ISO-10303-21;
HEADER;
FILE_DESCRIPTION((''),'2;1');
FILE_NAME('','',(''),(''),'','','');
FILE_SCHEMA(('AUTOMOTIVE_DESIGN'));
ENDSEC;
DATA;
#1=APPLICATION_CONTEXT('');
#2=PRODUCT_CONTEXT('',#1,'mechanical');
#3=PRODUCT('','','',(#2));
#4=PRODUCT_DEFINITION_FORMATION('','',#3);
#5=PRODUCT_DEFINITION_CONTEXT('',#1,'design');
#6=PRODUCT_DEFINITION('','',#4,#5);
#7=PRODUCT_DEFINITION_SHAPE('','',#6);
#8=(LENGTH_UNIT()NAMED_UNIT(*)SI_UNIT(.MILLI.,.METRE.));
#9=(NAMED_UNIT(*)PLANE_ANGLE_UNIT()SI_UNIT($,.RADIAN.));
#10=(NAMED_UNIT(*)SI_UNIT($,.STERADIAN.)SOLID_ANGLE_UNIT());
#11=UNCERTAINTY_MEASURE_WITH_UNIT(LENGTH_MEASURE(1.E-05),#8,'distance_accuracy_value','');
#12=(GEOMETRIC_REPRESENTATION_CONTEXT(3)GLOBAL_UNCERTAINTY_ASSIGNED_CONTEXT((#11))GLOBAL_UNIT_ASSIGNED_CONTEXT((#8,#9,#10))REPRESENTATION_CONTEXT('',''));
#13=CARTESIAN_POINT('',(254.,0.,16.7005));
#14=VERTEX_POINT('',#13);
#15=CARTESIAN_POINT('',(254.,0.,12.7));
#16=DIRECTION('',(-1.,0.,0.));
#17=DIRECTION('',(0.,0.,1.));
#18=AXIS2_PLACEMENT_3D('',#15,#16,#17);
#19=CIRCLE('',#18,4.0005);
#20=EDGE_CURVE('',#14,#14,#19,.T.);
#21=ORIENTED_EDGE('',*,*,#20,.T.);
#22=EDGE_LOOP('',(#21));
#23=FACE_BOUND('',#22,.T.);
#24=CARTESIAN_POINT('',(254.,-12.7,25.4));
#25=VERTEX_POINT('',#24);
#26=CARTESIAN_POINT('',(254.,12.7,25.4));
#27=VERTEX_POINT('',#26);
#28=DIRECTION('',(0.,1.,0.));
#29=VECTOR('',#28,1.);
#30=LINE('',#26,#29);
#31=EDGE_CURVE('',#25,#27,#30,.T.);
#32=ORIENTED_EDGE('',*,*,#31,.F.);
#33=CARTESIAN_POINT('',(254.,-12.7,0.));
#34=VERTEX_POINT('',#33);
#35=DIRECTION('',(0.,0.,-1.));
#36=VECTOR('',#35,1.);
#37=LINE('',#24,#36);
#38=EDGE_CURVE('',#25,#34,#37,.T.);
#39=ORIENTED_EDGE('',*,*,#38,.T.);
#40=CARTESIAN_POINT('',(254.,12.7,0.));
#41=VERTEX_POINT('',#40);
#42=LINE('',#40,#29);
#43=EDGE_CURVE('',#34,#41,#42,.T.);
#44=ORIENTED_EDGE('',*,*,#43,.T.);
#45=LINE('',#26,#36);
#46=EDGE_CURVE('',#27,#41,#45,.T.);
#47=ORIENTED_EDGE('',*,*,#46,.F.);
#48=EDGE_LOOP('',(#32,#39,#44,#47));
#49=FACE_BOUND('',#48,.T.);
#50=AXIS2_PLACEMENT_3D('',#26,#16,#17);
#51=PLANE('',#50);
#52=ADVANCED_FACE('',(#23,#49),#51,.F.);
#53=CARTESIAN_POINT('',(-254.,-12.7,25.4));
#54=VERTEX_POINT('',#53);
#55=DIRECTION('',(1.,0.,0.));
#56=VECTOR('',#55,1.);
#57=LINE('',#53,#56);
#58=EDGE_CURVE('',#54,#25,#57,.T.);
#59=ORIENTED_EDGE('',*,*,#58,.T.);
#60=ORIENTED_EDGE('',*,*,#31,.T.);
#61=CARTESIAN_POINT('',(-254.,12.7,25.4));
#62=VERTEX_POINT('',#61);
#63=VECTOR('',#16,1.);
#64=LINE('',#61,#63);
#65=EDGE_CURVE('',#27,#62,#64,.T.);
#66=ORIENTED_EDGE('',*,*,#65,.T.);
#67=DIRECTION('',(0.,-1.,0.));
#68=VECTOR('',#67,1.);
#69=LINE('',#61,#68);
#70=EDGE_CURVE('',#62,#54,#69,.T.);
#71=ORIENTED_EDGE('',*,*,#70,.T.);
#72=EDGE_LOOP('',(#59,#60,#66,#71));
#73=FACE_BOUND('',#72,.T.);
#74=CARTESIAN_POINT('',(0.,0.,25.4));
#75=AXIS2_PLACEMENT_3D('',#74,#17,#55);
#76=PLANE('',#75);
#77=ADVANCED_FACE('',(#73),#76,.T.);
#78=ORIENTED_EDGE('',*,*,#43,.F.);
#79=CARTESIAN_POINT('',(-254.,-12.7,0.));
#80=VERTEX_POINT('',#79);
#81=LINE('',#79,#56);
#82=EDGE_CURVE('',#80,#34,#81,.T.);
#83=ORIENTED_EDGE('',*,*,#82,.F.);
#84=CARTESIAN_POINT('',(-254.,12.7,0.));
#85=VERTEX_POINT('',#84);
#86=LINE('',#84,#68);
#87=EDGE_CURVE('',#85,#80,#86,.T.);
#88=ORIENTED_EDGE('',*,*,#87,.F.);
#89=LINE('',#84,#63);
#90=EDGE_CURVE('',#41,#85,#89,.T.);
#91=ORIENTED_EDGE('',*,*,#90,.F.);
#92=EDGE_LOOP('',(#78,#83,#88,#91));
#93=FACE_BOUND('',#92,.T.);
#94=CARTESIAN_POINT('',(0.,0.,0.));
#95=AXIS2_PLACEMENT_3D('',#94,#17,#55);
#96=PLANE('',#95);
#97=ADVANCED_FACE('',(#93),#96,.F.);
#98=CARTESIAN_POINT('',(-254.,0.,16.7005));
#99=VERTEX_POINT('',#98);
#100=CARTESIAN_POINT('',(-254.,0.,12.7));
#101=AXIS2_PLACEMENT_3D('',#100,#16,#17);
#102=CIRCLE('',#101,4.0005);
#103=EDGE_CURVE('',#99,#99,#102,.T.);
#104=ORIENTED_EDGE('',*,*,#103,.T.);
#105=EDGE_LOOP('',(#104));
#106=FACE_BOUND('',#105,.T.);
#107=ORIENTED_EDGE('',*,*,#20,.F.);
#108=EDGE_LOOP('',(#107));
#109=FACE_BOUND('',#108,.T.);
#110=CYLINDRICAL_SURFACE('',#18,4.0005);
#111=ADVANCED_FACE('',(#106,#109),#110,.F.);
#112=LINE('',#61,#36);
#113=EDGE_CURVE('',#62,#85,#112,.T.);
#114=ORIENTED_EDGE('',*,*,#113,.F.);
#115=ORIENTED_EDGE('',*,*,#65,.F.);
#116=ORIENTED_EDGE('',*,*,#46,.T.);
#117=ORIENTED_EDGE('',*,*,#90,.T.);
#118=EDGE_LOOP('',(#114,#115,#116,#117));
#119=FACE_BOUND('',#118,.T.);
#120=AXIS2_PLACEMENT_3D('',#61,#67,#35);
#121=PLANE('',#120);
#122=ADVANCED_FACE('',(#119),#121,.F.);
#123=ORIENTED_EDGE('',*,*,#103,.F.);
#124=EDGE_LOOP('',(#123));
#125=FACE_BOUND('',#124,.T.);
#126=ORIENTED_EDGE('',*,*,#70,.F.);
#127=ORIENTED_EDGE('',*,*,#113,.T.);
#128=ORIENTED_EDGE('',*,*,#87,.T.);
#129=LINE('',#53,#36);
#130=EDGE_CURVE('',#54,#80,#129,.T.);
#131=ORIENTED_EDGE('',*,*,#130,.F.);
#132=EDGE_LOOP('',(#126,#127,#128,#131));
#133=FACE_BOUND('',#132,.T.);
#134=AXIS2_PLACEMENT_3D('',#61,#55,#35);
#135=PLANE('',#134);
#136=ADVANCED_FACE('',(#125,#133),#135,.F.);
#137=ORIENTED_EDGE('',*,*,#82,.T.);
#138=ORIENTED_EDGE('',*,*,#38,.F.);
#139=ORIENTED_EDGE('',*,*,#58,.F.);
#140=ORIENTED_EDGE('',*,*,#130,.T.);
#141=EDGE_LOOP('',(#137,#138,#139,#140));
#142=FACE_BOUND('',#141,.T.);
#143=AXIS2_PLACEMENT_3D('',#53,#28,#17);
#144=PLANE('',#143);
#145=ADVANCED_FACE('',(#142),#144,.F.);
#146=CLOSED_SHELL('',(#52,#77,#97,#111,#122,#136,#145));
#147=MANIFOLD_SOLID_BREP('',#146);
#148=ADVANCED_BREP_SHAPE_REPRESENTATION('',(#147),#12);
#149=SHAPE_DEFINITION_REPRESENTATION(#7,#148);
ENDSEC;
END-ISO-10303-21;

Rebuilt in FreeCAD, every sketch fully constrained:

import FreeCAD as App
import Part
import Sketcher

V = App.Vector
Q = App.Units.Quantity


def add_polygon(sketch, points):
    """Adds a closed chain of lines whose ends are joined by coincident constraints."""
    first, n = sketch.GeometryCount, len(points)
    for a, b in zip(points, points[1:] + points[:1]):
        sketch.addGeometry(Part.LineSegment(App.Vector(*a, 0), App.Vector(*b, 0)), False)
    for i in range(n):
        sketch.addConstraint(Sketcher.Constraint("Coincident", first + i, 2, first + (i + 1) % n, 1))

doc = App.newDocument("Part")
body = doc.addObject("PartDesign::Body", "Body")

# Sketch on XY plane
sketch1 = body.newObject("Sketcher::SketchObject", "Sketch")
sketch1.AttachmentSupport = (doc.getObject("XY_Plane"), [""])
sketch1.MapMode = "FlatFace"
add_polygon(sketch1, [(-254, 13), (-254, -13), (254, -13), (254, 13)])  # lines 0-3
sketch1.addConstraint([
    Sketcher.Constraint("Vertical", 0),
    Sketcher.Constraint("Horizontal", 1),
    Sketcher.Constraint("Vertical", 2),
    Sketcher.Constraint("Horizontal", 3),
    Sketcher.Constraint("Symmetric", 0, 2, 2, 2, -1, 1),
    Sketcher.Constraint("DistanceX", 1, 1, 1, 2, Q("20 in")),
    Sketcher.Constraint("DistanceY", 0, 2, 0, 1, Q("1 in")),
])
pad1 = body.newObject("PartDesign::Pad", "Pad")
pad1.Profile = sketch1
pad1.Length = Q("1 in")

# Sketch on YZ plane
sketch2 = body.newObject("Sketcher::SketchObject", "Sketch001")
sketch2.AttachmentSupport = (doc.getObject("YZ_Plane"), [""])
sketch2.MapMode = "FlatFace"
sketch2.AttachmentOffset = App.Placement(V(0, 0, -10 * 25.4), App.Rotation())
sketch2.addGeometry(Part.Circle(V(0, 12.7, 0), V(0, 0, 1), 4), False)
sketch2.addConstraint([
    Sketcher.Constraint("PointOnObject", 0, 3, -2),
    Sketcher.Constraint("Diameter", 0, Q("0.315 in")),
    Sketcher.Constraint("DistanceY", -1, 1, 0, 3, Q("0.5 in")),
])
pocket1 = body.newObject("PartDesign::Pocket", "Pocket")
pocket1.Profile = sketch2
pocket1.Type = "ThroughAll"
pocket1.Reversed = True

doc.recompute()
